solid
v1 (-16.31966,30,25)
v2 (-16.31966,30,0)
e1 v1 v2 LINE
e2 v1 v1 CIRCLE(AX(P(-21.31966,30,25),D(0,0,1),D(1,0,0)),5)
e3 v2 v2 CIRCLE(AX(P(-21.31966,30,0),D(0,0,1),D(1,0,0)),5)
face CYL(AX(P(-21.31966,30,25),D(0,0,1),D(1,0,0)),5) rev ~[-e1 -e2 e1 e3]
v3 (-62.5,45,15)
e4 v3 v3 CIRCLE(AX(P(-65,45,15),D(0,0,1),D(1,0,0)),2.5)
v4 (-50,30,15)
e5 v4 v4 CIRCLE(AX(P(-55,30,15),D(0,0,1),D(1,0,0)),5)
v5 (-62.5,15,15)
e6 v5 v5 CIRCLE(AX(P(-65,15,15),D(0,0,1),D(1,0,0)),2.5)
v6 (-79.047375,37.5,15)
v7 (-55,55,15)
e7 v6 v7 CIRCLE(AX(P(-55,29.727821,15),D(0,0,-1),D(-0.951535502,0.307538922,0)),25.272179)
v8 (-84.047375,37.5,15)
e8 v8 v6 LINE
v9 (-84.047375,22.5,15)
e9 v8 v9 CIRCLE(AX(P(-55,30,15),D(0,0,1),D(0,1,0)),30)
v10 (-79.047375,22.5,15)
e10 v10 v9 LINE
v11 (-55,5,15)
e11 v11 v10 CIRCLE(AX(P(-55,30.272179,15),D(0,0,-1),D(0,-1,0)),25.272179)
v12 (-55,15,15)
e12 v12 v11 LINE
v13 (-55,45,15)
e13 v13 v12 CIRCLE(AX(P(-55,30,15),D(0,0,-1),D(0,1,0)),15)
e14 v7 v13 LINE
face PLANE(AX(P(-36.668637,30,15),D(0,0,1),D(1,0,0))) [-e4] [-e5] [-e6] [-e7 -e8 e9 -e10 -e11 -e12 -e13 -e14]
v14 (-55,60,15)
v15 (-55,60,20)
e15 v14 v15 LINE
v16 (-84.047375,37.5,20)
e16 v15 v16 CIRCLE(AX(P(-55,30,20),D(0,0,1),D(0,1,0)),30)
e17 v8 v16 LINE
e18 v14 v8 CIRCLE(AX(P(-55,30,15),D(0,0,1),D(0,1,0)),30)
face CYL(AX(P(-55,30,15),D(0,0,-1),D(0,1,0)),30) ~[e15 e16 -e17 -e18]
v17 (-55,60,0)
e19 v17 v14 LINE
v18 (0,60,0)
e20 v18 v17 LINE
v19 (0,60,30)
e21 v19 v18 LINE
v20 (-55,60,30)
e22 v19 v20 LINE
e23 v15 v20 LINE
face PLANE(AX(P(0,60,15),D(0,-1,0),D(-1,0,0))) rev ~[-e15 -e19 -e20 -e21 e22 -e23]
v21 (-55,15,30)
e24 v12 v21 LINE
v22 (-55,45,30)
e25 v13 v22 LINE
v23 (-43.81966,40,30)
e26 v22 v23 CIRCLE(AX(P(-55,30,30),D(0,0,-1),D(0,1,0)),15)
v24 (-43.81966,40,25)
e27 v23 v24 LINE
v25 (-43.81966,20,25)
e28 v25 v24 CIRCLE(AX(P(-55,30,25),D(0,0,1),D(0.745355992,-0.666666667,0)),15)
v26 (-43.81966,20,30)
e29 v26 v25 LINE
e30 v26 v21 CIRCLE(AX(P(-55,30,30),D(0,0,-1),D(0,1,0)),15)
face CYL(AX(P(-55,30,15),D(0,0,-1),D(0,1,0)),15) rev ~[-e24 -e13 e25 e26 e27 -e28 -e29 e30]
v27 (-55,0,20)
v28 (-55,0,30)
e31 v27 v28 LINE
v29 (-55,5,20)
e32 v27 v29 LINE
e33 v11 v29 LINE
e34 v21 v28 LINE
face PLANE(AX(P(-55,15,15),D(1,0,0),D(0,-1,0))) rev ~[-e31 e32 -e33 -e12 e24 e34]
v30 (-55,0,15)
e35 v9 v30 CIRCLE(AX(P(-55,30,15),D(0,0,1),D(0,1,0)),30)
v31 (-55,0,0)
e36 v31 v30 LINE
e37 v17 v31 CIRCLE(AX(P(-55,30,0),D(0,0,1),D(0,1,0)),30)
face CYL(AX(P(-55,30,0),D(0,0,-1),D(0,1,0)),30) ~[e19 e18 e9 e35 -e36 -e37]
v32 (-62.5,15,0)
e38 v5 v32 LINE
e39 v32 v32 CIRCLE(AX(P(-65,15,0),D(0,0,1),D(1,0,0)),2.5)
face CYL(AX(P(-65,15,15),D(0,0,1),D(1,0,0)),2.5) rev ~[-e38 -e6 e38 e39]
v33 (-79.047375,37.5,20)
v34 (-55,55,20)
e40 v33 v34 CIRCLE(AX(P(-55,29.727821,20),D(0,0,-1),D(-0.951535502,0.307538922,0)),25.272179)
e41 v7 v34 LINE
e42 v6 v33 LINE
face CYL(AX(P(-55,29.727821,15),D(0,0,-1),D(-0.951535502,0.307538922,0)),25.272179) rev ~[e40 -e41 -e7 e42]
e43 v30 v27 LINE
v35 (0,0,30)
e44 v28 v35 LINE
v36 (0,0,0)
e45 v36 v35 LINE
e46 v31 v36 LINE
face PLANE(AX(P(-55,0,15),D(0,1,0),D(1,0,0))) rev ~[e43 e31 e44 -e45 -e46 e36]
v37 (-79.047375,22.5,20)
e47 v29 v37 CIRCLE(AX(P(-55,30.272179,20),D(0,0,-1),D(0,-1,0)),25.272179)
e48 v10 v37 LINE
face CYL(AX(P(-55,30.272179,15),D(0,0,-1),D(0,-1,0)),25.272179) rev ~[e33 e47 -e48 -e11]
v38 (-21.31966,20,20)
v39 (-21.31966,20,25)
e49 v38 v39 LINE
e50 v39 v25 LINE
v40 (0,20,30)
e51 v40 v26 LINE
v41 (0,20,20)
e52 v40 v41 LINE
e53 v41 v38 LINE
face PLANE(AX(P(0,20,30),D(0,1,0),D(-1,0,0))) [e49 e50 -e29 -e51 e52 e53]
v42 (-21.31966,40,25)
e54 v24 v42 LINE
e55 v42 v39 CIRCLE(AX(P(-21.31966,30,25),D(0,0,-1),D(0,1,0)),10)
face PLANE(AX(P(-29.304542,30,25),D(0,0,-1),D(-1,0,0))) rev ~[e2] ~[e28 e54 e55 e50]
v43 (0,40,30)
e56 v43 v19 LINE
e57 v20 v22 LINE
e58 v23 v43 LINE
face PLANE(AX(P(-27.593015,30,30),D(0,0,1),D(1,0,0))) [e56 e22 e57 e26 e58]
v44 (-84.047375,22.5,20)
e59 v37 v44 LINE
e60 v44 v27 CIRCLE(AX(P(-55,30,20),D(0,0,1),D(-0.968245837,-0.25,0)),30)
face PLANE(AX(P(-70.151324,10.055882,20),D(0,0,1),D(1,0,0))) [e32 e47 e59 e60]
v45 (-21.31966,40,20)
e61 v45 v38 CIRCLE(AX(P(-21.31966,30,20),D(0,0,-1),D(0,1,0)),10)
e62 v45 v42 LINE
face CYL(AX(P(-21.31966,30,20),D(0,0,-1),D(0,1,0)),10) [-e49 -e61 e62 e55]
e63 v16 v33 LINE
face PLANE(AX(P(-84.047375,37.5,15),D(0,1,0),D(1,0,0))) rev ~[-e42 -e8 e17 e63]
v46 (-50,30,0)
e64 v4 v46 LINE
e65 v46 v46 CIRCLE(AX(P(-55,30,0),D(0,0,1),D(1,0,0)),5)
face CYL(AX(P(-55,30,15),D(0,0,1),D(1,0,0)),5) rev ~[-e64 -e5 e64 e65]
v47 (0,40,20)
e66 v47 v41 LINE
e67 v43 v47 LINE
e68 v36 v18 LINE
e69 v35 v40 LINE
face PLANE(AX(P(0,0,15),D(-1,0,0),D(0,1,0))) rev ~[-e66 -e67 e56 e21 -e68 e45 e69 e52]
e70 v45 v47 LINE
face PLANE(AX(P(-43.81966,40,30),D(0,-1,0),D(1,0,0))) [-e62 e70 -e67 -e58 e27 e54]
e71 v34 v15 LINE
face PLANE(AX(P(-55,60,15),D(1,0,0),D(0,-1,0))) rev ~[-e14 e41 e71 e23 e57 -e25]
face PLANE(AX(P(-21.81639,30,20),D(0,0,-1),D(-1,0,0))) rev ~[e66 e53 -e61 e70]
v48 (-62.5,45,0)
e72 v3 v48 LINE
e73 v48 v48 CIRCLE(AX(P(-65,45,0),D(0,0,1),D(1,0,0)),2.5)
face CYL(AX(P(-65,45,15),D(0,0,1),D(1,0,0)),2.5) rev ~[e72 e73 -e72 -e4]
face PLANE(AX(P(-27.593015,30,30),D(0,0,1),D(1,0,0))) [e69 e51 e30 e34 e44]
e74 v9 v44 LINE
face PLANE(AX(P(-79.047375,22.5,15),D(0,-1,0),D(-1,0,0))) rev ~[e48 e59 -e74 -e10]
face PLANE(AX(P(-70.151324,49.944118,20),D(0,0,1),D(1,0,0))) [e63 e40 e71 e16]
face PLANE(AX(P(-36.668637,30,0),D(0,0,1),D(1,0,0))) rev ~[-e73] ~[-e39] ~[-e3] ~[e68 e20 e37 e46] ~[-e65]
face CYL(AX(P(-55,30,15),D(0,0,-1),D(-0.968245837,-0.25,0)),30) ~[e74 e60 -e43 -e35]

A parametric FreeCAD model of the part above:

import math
import FreeCAD as App
import Part
import Sketcher

V = App.Vector

doc = App.newDocument("Part")
params = doc.addObject("Spreadsheet::Sheet", "Params")
for row, (alias, value) in enumerate([
    ("sketch1_radius", "30 mm"),
    ("sketch1_width", "55 mm"),
    ("pad1_length", "15 mm"),
    ("sketch2_radius", "30 mm"),
    ("sketch2_width", "5 mm"),
    ("pad2_length", "5 mm"),
    ("sketch3_radius", "15 mm"),
    ("sketch3_width", "55 mm"),
    ("sketch3_height", "15 mm"),
    ("pad3_length", "15 mm"),
    ("sketch4_radius", "15 mm"),
    ("sketch4_height", "20 mm"),
    ("pocket1_length", "10 mm"),
    ("sketch5_radius", "15 mm"),
    ("sketch5_radius2", "10 mm"),
    ("sketch5_width", "22.5 mm"),
    ("pad4_length", "5 mm"),
    ("sketch6_diameter", "10 mm"),
    ("pocket2_length", "54 mm"),
    ("sketch7_diameter", "10 mm"),
    ("sketch7_diameter2", "5 mm"),
    ("pocket3_length", "76 mm"),
], start=1):
    params.set(f"A{row}", alias)
    params.set(f"B{row}", "=" + value)
    params.setAlias(f"B{row}", alias)

body = doc.addObject("PartDesign::Body", "Body")

# Sketch on XY plane
sketch1 = body.newObject("Sketcher::SketchObject", "Sketch")
sketch1.AttachmentSupport = (doc.getObject("XY_Plane"), [""])
sketch1.MapMode = "FlatFace"
sketch1.addGeometry([
    Part.LineSegment(V(-55, 0, 0), V(0, 0, 0)),
    Part.LineSegment(V(0, 0, 0), V(0, 60, 0)),
    Part.LineSegment(V(0, 60, 0), V(-55, 60, 0)),
    Part.ArcOfCircle(Part.Circle(V(-55, 30, 0), V(0, 0, 1), 30), math.radians(90), math.radians(270)),
], False)
sketch1.addConstraint([
    Sketcher.Constraint("Coincident", 0, 2, 1, 1),
    Sketcher.Constraint("Coincident", 1, 2, 2, 1),
    Sketcher.Constraint("Tangent", 2, 2, 3, 1),
    Sketcher.Constraint("Tangent", 3, 2, 0, 1),
    Sketcher.Constraint("Horizontal", 0),
    Sketcher.Constraint("Vertical", 1),
    Sketcher.Constraint("Horizontal", 2),
    Sketcher.Constraint("Coincident", 0, 2, -1, 1),
    Sketcher.Constraint("Radius", 3, 30.0),
    Sketcher.Constraint("DistanceX", 0, 1, 0, 2, 55.0),
])
sketch1.setExpression("Constraints[8]", "Params.sketch1_radius")
sketch1.setExpression("Constraints[9]", "Params.sketch1_width")
pad1 = body.newObject("PartDesign::Pad", "Pad")
pad1.Profile = sketch1
pad1.setExpression("Length", "Params.pad1_length")

# Sketch on XY plane
sketch2 = body.newObject("Sketcher::SketchObject", "Sketch001")
sketch2.AttachmentSupport = (doc.getObject("XY_Plane"), [""])
sketch2.MapMode = "FlatFace"
sketch2.AttachmentOffset = App.Placement(V(0, 0, 15), App.Rotation())
sketch2.addGeometry([
    Part.LineSegment(V(-84, 38, 0), V(-79, 38, 0)),  # 0
    Part.ArcOfCircle(Part.Circle(V(-55, 30, 0), V(0, 0, 1), 25), math.radians(90), math.radians(162)),  # 1
    Part.LineSegment(V(-55, 55, 0), V(-55, 60, 0)),  # 2
    Part.ArcOfCircle(Part.Circle(V(-55, 30, 0), V(0, 0, 1), 30), math.radians(90), math.radians(166)),  # 3
    Part.LineSegment(V(-55, 0, 0), V(-55, 5, 0)),  # 4
    Part.ArcOfCircle(Part.Circle(V(-55, 30, 0), V(0, 0, 1), 25), math.radians(-162), math.radians(-90)),  # 5
    Part.LineSegment(V(-79, 22, 0), V(-84, 22, 0)),  # 6
    Part.ArcOfCircle(Part.Circle(V(-55, 30, 0), V(0, 0, 1), 30), math.radians(-166), math.radians(-90)),  # 7
], False)
sketch2.addConstraint([
    Sketcher.Constraint("Coincident", 0, 2, 1, 2),
    Sketcher.Constraint("Coincident", 1, 1, 2, 1),
    Sketcher.Constraint("Coincident", 2, 2, 3, 1),
    Sketcher.Constraint("Coincident", 3, 2, 0, 1),
    Sketcher.Constraint("Coincident", 4, 2, 5, 2),
    Sketcher.Constraint("Coincident", 5, 1, 6, 1),
    Sketcher.Constraint("Coincident", 6, 2, 7, 1),
    Sketcher.Constraint("Coincident", 7, 2, 4, 1),
    Sketcher.Constraint("Horizontal", 0),
    Sketcher.Constraint("Vertical", 2),
    Sketcher.Constraint("Vertical", 4),
    Sketcher.Constraint("Horizontal", 6),
    Sketcher.Constraint("Coincident", 7, 3, 3, 3),
    Sketcher.Constraint("Equal", 1, 5),
    Sketcher.Constraint("Equal", 3, 7),
    Sketcher.Constraint("PointOnObject", 7, 2, -1),
    Sketcher.Constraint("Vertical", 1, 3, 3, 3),
    Sketcher.Constraint("Vertical", 3, 3, 5, 3),
    Sketcher.Constraint("Vertical", 7, 3, 1, 1),
    Sketcher.Constraint("Vertical", 2, 2, 4, 2),
    Sketcher.Constraint("Vertical", 0, 2, 5, 1),
    Sketcher.Constraint("Vertical", 3, 2, 6, 2),
    Sketcher.Constraint("Equal", 6, 2),
    Sketcher.Constraint("Radius", 3, 30.0),
    Sketcher.Constraint("DistanceX", 0, 1, 0, 2, 5.0),
    Sketcher.Constraint("DistanceX", 1, 3, -1, 1, 55.0),
    Sketcher.Constraint("DistanceY", 5, 1, 0, 2, 15.0),
])
sketch2.setExpression("Constraints[23]", "Params.sketch2_radius")
sketch2.setExpression("Constraints[24]", "Params.sketch2_width")
pad2 = body.newObject("PartDesign::Pad", "Pad001")
pad2.Profile = sketch2
pad2.setExpression("Length", "Params.pad2_length")

# Sketch on XY plane
sketch3 = body.newObject("Sketcher::SketchObject", "Sketch002")
sketch3.AttachmentSupport = (doc.getObject("XY_Plane"), [""])
sketch3.MapMode = "FlatFace"
sketch3.AttachmentOffset = App.Placement(V(0, 0, 15), App.Rotation())
sketch3.addGeometry([
    Part.LineSegment(V(-55, 60, 0), V(-55, 45, 0)),  # 0
    Part.ArcOfCircle(Part.Circle(V(-55, 30, 0), V(0, 0, 1), 15), math.radians(-90), math.radians(90)),  # 1
    Part.LineSegment(V(-55, 15, 0), V(-55, 0, 0)),  # 2
    Part.LineSegment(V(-55, 0, 0), V(0, 0, 0)),  # 3
    Part.LineSegment(V(0, 0, 0), V(0, 60, 0)),  # 4
    Part.LineSegment(V(0, 60, 0), V(-55, 60, 0)),  # 5
], False)
sketch3.addConstraint([
    Sketcher.Constraint("Coincident", 0, 2, 1, 2),
    Sketcher.Constraint("Coincident", 1, 1, 2, 1),
    Sketcher.Constraint("Coincident", 2, 2, 3, 1),
    Sketcher.Constraint("Coincident", 3, 2, 4, 1),
    Sketcher.Constraint("Coincident", 4, 2, 5, 1),
    Sketcher.Constraint("Coincident", 5, 2, 0, 1),
    Sketcher.Constraint("Vertical", 0),
    Sketcher.Constraint("Vertical", 2),
    Sketcher.Constraint("Horizontal", 3),
    Sketcher.Constraint("Vertical", 4),
    Sketcher.Constraint("Horizontal", 5),
    Sketcher.Constraint("Coincident", 3, 2, -1, 1),
    Sketcher.Constraint("Vertical", 1, 3, 0, 2),
    Sketcher.Constraint("Vertical", 0, 2, 1, 1),
    Sketcher.Constraint("Equal", 0, 2),
    Sketcher.Constraint("Radius", 1, 15.0),
    Sketcher.Constraint("DistanceX", 3, 1, 3, 2, 55.0),
    Sketcher.Constraint("DistanceY", 0, 2, 0, 1, 15.0),
])
sketch3.setExpression("Constraints[15]", "Params.sketch3_radius")
sketch3.setExpression("Constraints[16]", "Params.sketch3_width")
sketch3.setExpression("Constraints[17]", "Params.sketch3_height")
pad3 = body.newObject("PartDesign::Pad", "Pad002")
pad3.Profile = sketch3
pad3.setExpression("Length", "Params.pad3_length")

# Sketch on XY plane
sketch4 = body.newObject("Sketcher::SketchObject", "Sketch003")
sketch4.AttachmentSupport = (doc.getObject("XY_Plane"), [""])
sketch4.MapMode = "FlatFace"
sketch4.AttachmentOffset = App.Placement(V(0, 0, 30), App.Rotation())
sketch4.addGeometry([
    Part.LineSegment(V(0, 40, 0), V(-44, 40, 0)),
    Part.ArcOfCircle(Part.Circle(V(-55, 30, 0), V(0, 0, 1), 15), math.radians(-42), math.radians(42)),
    Part.LineSegment(V(-44, 20, 0), V(0, 20, 0)),
    Part.LineSegment(V(0, 20, 0), V(0, 40, 0)),
], False)
sketch4.addConstraint([
    Sketcher.Constraint("Coincident", 0, 2, 1, 2),
    Sketcher.Constraint("Coincident", 1, 1, 2, 1),
    Sketcher.Constraint("Coincident", 2, 2, 3, 1),
    Sketcher.Constraint("Coincident", 3, 2, 0, 1),
    Sketcher.Constraint("Horizontal", 0),
    Sketcher.Constraint("Horizontal", 2),
    Sketcher.Constraint("Vertical", 3),
    Sketcher.Constraint("PointOnObject", 2, 2, -2),
    Sketcher.Constraint("Vertical", 0, 2, 1, 1),
    Sketcher.Constraint("Radius", 1, 15.0),
    Sketcher.Constraint("DistanceY", 3, 1, 3, 2, 20.0),
    Sketcher.Constraint("DistanceX", 1, 3, -1, 1, 55.0),
    Sketcher.Constraint("DistanceY", -1, 1, 1, 3, 30.0),
])
sketch4.setExpression("Constraints[9]", "Params.sketch4_radius")
sketch4.setExpression("Constraints[10]", "Params.sketch4_height")
pocket1 = body.newObject("PartDesign::Pocket", "Pocket")
pocket1.Profile = sketch4
pocket1.setExpression("Length", "Params.pocket1_length")

# Sketch on XY plane
sketch5 = body.newObject("Sketcher::SketchObject", "Sketch004")
sketch5.AttachmentSupport = (doc.getObject("XY_Plane"), [""])
sketch5.MapMode = "FlatFace"
sketch5.AttachmentOffset = App.Placement(V(0, 0, 20), App.Rotation())
sketch5.addGeometry([
    Part.LineSegment(V(-21, 40, 0), V(-44, 40, 0)),
    Part.ArcOfCircle(Part.Circle(V(-55, 30, 0), V(0, 0, 1), 15), math.radians(-42), math.radians(42)),
    Part.LineSegment(V(-44, 20, 0), V(-21, 20, 0)),
    Part.ArcOfCircle(Part.Circle(V(-21, 30, 0), V(0, 0, 1), 10), math.radians(-90), math.radians(90)),
], False)
sketch5.addConstraint([
    Sketcher.Constraint("Coincident", 0, 2, 1, 2),
    Sketcher.Constraint("Coincident", 1, 1, 2, 1),
    Sketcher.Constraint("Tangent", 2, 2, 3, 1),
    Sketcher.Constraint("Tangent", 3, 2, 0, 1),
    Sketcher.Constraint("Horizontal", 0),
    Sketcher.Constraint("Horizontal", 2),
    Sketcher.Constraint("Horizontal", 1, 3, 3, 3),
    Sketcher.Constraint("Radius", 1, 15.0),
    Sketcher.Constraint("Radius", 3, 10.0),
    Sketcher.Constraint("DistanceX", 0, 2, 0, 1, 22.5),
    Sketcher.Constraint("DistanceX", 1, 3, -1, 1, 55.0),
    Sketcher.Constraint("DistanceY", -1, 1, 1, 3, 30.0),
])
sketch5.setExpression("Constraints[7]", "Params.sketch5_radius")
sketch5.setExpression("Constraints[8]", "Params.sketch5_radius2")
sketch5.setExpression("Constraints[9]", "Params.sketch5_width")
pad4 = body.newObject("PartDesign::Pad", "Pad003")
pad4.Profile = sketch5
pad4.setExpression("Length", "Params.pad4_length")

# Sketch on XY plane
sketch6 = body.newObject("Sketcher::SketchObject", "Sketch005")
sketch6.AttachmentSupport = (doc.getObject("XY_Plane"), [""])
sketch6.MapMode = "FlatFace"
sketch6.AttachmentOffset = App.Placement(V(0, 0, 25), App.Rotation())
sketch6.addGeometry(Part.Circle(V(-21, 30, 0), V(0, 0, 1), 5), False)
sketch6.addConstraint([
    Sketcher.Constraint("Diameter", 0, 10.0),
    Sketcher.Constraint("DistanceY", -1, 1, 0, 3, 30.0),
    Sketcher.Constraint("DistanceX", 0, 3, -1, 1, 21.31966),
])
sketch6.setExpression("Constraints[0]", "Params.sketch6_diameter")
pocket2 = body.newObject("PartDesign::Pocket", "Pocket001")
pocket2.Profile = sketch6
pocket2.setExpression("Length", "Params.pocket2_length")

# Sketch on XY plane
sketch7 = body.newObject("Sketcher::SketchObject", "Sketch006")
sketch7.AttachmentSupport = (doc.getObject("XY_Plane"), [""])
sketch7.MapMode = "FlatFace"
sketch7.AttachmentOffset = App.Placement(V(0, 0, 15), App.Rotation())
sketch7.addGeometry([
    Part.Circle(V(-55, 30, 0), V(0, 0, 1), 5),
    Part.Circle(V(-65, 15, 0), V(0, 0, 1), 2.5),
    Part.Circle(V(-65, 45, 0), V(0, 0, 1), 2.5),
], False)
sketch7.addConstraint([
    Sketcher.Constraint("Equal", 1, 2),
    Sketcher.Constraint("Vertical", 1, 3, 2, 3),
    Sketcher.Constraint("Diameter", 0, 10.0),
    Sketcher.Constraint("Diameter", 1, 5.0),
    Sketcher.Constraint("DistanceX", 0, 3, -1, 1, 55.0),
    Sketcher.Constraint("DistanceY", -1, 1, 0, 3, 30.0),
    Sketcher.Constraint("DistanceX", 1, 3, -1, 1, 65.0),
    Sketcher.Constraint("DistanceY", -1, 1, 1, 3, 15.0),
    Sketcher.Constraint("DistanceY", -1, 1, 2, 3, 45.0),
])
sketch7.setExpression("Constraints[2]", "Params.sketch7_diameter")
sketch7.setExpression("Constraints[3]", "Params.sketch7_diameter2")
pocket3 = body.newObject("PartDesign::Pocket", "Pocket002")
pocket3.Profile = sketch7
pocket3.setExpression("Length", "Params.pocket3_length")

doc.recompute()
